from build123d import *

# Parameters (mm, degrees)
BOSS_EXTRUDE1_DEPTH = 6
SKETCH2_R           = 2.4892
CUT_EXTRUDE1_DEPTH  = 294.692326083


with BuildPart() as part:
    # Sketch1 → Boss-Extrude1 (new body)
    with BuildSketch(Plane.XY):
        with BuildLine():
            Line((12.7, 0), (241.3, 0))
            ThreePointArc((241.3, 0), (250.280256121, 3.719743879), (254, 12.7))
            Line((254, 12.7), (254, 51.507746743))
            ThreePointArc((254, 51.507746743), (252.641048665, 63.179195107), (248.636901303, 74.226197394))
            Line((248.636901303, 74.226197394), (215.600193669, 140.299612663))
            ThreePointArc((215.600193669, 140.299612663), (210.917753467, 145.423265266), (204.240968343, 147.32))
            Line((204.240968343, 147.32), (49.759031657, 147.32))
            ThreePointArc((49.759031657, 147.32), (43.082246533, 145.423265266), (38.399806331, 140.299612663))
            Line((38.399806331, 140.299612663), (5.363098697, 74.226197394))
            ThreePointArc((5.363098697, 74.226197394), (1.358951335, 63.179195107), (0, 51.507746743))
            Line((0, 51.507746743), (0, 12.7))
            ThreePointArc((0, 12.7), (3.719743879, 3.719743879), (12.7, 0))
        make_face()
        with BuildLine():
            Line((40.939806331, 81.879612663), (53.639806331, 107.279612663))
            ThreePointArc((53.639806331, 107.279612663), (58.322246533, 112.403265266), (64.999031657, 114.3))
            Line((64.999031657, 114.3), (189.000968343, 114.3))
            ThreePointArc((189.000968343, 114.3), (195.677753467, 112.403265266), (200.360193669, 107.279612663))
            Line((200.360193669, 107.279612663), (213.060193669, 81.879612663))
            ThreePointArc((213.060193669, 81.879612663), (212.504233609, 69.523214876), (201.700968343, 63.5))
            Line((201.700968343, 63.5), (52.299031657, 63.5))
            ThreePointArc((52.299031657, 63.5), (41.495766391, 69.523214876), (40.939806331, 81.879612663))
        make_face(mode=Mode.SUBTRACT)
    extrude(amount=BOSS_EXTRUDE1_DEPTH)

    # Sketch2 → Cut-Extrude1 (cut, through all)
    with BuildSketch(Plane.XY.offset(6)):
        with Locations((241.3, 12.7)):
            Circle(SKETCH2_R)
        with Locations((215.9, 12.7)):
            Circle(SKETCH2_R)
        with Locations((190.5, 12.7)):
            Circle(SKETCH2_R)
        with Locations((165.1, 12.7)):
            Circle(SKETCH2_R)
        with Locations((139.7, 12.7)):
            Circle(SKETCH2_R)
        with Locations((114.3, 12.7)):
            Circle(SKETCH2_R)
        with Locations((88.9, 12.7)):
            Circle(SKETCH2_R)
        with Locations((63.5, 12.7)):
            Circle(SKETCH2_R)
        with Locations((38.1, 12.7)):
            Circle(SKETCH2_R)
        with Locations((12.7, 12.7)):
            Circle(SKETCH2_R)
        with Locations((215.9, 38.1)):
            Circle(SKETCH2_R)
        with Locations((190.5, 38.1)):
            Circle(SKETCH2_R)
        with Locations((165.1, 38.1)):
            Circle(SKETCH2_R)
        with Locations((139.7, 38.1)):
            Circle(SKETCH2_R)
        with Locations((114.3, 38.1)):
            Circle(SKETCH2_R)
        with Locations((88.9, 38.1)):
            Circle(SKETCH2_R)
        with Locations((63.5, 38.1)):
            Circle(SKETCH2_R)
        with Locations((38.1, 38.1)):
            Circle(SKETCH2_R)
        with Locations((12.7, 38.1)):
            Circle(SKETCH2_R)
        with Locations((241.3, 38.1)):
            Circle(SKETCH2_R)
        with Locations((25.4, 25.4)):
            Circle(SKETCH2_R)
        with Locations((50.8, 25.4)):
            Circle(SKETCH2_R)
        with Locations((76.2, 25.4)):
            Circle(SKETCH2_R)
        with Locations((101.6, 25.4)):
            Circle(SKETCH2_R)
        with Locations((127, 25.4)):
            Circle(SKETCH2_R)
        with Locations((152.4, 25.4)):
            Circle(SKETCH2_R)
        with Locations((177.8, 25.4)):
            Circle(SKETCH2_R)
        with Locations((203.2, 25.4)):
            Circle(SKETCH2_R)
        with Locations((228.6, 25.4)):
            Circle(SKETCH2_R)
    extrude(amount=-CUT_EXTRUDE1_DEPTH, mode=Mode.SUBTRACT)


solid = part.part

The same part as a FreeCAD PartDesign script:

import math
import FreeCAD as App
import Part
import Sketcher
from FreeCAD import Vector
Q = App.Units.Quantity

doc = App.newDocument("Part")
params = doc.addObject("Spreadsheet::Sheet", "Params")
for row, (alias, value) in enumerate([
    ("sketch1_radius", "2 in"),
    ("sketch1_radius2", "0.5 in"),
    ("sketch1_width", "9 in"),
    ("pad1_length", "6 mm"),
    ("sketch2_diameter", "0.196 in"),
], start=1):
    params.set(f"A{row}", alias)
    params.set(f"B{row}", "=" + value)
    params.setAlias(f"B{row}", alias)

body = doc.addObject("PartDesign::Body", "Body")

# Sketch on XY plane
sketch1 = body.newObject("Sketcher::SketchObject", "Sketch")
sketch1.AttachmentSupport = (doc.getObject("XY_Plane"), [""])
sketch1.MapMode = "FlatFace"
sketch1.addGeometry([
    Part.LineSegment(Vector(13, 0, 0), Vector(241, 0, 0)),  # 0
    Part.ArcOfCircle(Part.Circle(Vector(241, 13, 0), Vector(0, 0, 1), 13), math.radians(-90), math.radians(0)),  # 1
    Part.LineSegment(Vector(254, 13, 0), Vector(254, 52, 0)),  # 2
    Part.ArcOfCircle(Part.Circle(Vector(203, 52, 0), Vector(0, 0, 1), 51), math.radians(0), math.radians(27)),  # 3
    Part.LineSegment(Vector(249, 74, 0), Vector(216, 140, 0)),  # 4
    Part.ArcOfCircle(Part.Circle(Vector(204, 135, 0), Vector(0, 0, 1), 13), math.radians(27), math.radians(90)),  # 5
    Part.LineSegment(Vector(204, 147, 0), Vector(50, 147, 0)),  # 6
    Part.ArcOfCircle(Part.Circle(Vector(50, 135, 0), Vector(0, 0, 1), 13), math.radians(90), math.radians(153)),  # 7
    Part.LineSegment(Vector(38, 140, 0), Vector(5, 74, 0)),  # 8
    Part.ArcOfCircle(Part.Circle(Vector(51, 52, 0), Vector(0, 0, 1), 51), math.radians(153), math.radians(180)),  # 9
    Part.LineSegment(Vector(0, 52, 0), Vector(0, 13, 0)),  # 10
    Part.ArcOfCircle(Part.Circle(Vector(13, 13, 0), Vector(0, 0, 1), 13), math.radians(180), math.radians(270)),  # 11
    Part.ArcOfCircle(Part.Circle(Vector(52, 76, 0), Vector(0, 0, 1), 13), math.radians(153), math.radians(270)),  # 12
    Part.LineSegment(Vector(41, 82, 0), Vector(54, 107, 0)),  # 13
    Part.ArcOfCircle(Part.Circle(Vector(65, 102, 0), Vector(0, 0, 1), 13), math.radians(90), math.radians(153)),  # 14
    Part.LineSegment(Vector(65, 114, 0), Vector(189, 114, 0)),  # 15
    Part.ArcOfCircle(Part.Circle(Vector(189, 102, 0), Vector(0, 0, 1), 13), math.radians(27), math.radians(90)),  # 16
    Part.LineSegment(Vector(200, 107, 0), Vector(213, 82, 0)),  # 17
    Part.ArcOfCircle(Part.Circle(Vector(202, 76, 0), Vector(0, 0, 1), 13), math.radians(-90), math.radians(27)),  # 18
    Part.LineSegment(Vector(202, 64, 0), Vector(52, 64, 0)),  # 19
], False)
sketch1.addConstraint([
    Sketcher.Constraint("Tangent", 0, 2, 1, 1),
    Sketcher.Constraint("Tangent", 1, 2, 2, 1),
    Sketcher.Constraint("Tangent", 2, 2, 3, 1),
    Sketcher.Constraint("Tangent", 3, 2, 4, 1),
    Sketcher.Constraint("Tangent", 4, 2, 5, 1),
    Sketcher.Constraint("Tangent", 5, 2, 6, 1),
    Sketcher.Constraint("Tangent", 6, 2, 7, 1),
    Sketcher.Constraint("Tangent", 7, 2, 8, 1),
    Sketcher.Constraint("Tangent", 8, 2, 9, 1),
    Sketcher.Constraint("Tangent", 9, 2, 10, 1),
    Sketcher.Constraint("Tangent", 10, 2, 11, 1),
    Sketcher.Constraint("Tangent", 11, 2, 0, 1),
    Sketcher.Constraint("Tangent", 12, 1, 13, 1),
    Sketcher.Constraint("Tangent", 13, 2, 14, 2),
    Sketcher.Constraint("Tangent", 14, 1, 15, 1),
    Sketcher.Constraint("Tangent", 15, 2, 16, 2),
    Sketcher.Constraint("Tangent", 16, 1, 17, 1),
    Sketcher.Constraint("Tangent", 17, 2, 18, 2),
    Sketcher.Constraint("Tangent", 18, 1, 19, 1),
    Sketcher.Constraint("Tangent", 19, 2, 12, 2),
    Sketcher.Constraint("Horizontal", 0),
    Sketcher.Constraint("Vertical", 2),
    Sketcher.Constraint("Horizontal", 6),
    Sketcher.Constraint("Vertical", 10),
    Sketcher.Constraint("Horizontal", 15),
    Sketcher.Constraint("Horizontal", 19),
    Sketcher.Constraint("Equal", 1, 5),
    Sketcher.Constraint("Equal", 5, 7),
    Sketcher.Constraint("Equal", 3, 9),
    Sketcher.Constraint("Equal", 7, 11),
    Sketcher.Constraint("Equal", 11, 12),
    Sketcher.Constraint("Equal", 12, 14),
    Sketcher.Constraint("Equal", 14, 16),
    Sketcher.Constraint("Equal", 16, 18),
    Sketcher.Constraint("PointOnObject", 0, 2, -1),
    Sketcher.Constraint("PointOnObject", 9, 2, -2),
    Sketcher.Constraint("Parallel", 8, 13),
    Sketcher.Constraint("Parallel", 4, 17),
    Sketcher.Constraint("Horizontal", 3, 3, 9, 3),
    Sketcher.Constraint("Horizontal", 4, 2, 7, 2),
    Sketcher.Constraint("Radius", 3, Q("2 in")),
    Sketcher.Constraint("Radius", 1, Q("0.5 in")),
    Sketcher.Constraint("DistanceX", 0, 1, 0, 2, Q("9 in")),
    Sketcher.Constraint("DistanceY", -1, 1, 12, 3, Q("3 in")),
    Sketcher.Constraint("DistanceY", -1, 1, 14, 3, Q("4 in")),
    Sketcher.Constraint("DistanceY", -1, 1, 5, 3, Q("5.3 in")),
    Sketcher.Constraint("DistanceX", 7, 3, 12, 3, Q("0.1 in")),
    Sketcher.Constraint("DistanceX", 12, 3, 14, 3, Q("0.5 in")),
    Sketcher.Constraint("DistanceX", 16, 3, 5, 3, Q("0.6 in")),
    Sketcher.Constraint("DistanceX", 6, 2, 6, 1, 154.481937),
])
sketch1.setExpression("Constraints[40]", "Params.sketch1_radius")
sketch1.setExpression("Constraints[41]", "Params.sketch1_radius2")
sketch1.setExpression("Constraints[42]", "Params.sketch1_width")
pad1 = body.newObject("PartDesign::Pad", "Pad")
pad1.Profile = sketch1
pad1.setExpression("Length", "Params.pad1_length")

# Sketch on XY plane
sketch2 = body.newObject("Sketcher::SketchObject", "Sketch001")
sketch2.AttachmentSupport = (doc.getObject("XY_Plane"), [""])
sketch2.MapMode = "FlatFace"
sketch2.AttachmentOffset = App.Placement(Vector(0, 0, 6), App.Rotation())
sketch2.addGeometry([
    Part.Circle(Vector(241.3, 12.7, 0), Vector(0, 0, 1), 2.5),  # 0
    Part.Circle(Vector(215.9, 12.7, 0), Vector(0, 0, 1), 2.5),  # 1
    Part.Circle(Vector(190.5, 12.7, 0), Vector(0, 0, 1), 2.5),  # 2
    Part.Circle(Vector(165.1, 12.7, 0), Vector(0, 0, 1), 2.5),  # 3
    Part.Circle(Vector(139.7, 12.7, 0), Vector(0, 0, 1), 2.5),  # 4
    Part.Circle(Vector(114.3, 12.7, 0), Vector(0, 0, 1), 2.5),  # 5
    Part.Circle(Vector(88.9, 12.7, 0), Vector(0, 0, 1), 2.5),  # 6
    Part.Circle(Vector(63.5, 12.7, 0), Vector(0, 0, 1), 2.5),  # 7
    Part.Circle(Vector(38.1, 12.7, 0), Vector(0, 0, 1), 2.5),  # 8
    Part.Circle(Vector(12.7, 12.7, 0), Vector(0, 0, 1), 2.5),  # 9
    Part.Circle(Vector(215.9, 38.1, 0), Vector(0, 0, 1), 2.5),  # 10
    Part.Circle(Vector(190.5, 38.1, 0), Vector(0, 0, 1), 2.5),  # 11
    Part.Circle(Vector(165.1, 38.1, 0), Vector(0, 0, 1), 2.5),  # 12
    Part.Circle(Vector(139.7, 38.1, 0), Vector(0, 0, 1), 2.5),  # 13
    Part.Circle(Vector(114.3, 38.1, 0), Vector(0, 0, 1), 2.5),  # 14
    Part.Circle(Vector(88.9, 38.1, 0), Vector(0, 0, 1), 2.5),  # 15
    Part.Circle(Vector(63.5, 38.1, 0), Vector(0, 0, 1), 2.5),  # 16
    Part.Circle(Vector(38.1, 38.1, 0), Vector(0, 0, 1), 2.5),  # 17
    Part.Circle(Vector(12.7, 38.1, 0), Vector(0, 0, 1), 2.5),  # 18
    Part.Circle(Vector(241.3, 38.1, 0), Vector(0, 0, 1), 2.5),  # 19
    Part.Circle(Vector(25.4, 25.4, 0), Vector(0, 0, 1), 2.5),  # 20
    Part.Circle(Vector(50.8, 25.4, 0), Vector(0, 0, 1), 2.5),  # 21
    Part.Circle(Vector(76.2, 25.4, 0), Vector(0, 0, 1), 2.5),  # 22
    Part.Circle(Vector(101.6, 25.4, 0), Vector(0, 0, 1), 2.5),  # 23
    Part.Circle(Vector(127, 25.4, 0), Vector(0, 0, 1), 2.5),  # 24
    Part.Circle(Vector(152.4, 25.4, 0), Vector(0, 0, 1), 2.5),  # 25
    Part.Circle(Vector(177.8, 25.4, 0), Vector(0, 0, 1), 2.5),  # 26
    Part.Circle(Vector(203.2, 25.4, 0), Vector(0, 0, 1), 2.5),  # 27
    Part.Circle(Vector(228.6, 25.4, 0), Vector(0, 0, 1), 2.5),  # 28
], False)
sketch2.addConstraint([
    Sketcher.Constraint("Equal", 0, 1),
    Sketcher.Constraint("Equal", 1, 2),
    Sketcher.Constraint("Equal", 2, 3),
    Sketcher.Constraint("Equal", 3, 4),
    Sketcher.Constraint("Equal", 4, 5),
    Sketcher.Constraint("Equal", 5, 6),
    Sketcher.Constraint("Equal", 6, 7),
    Sketcher.Constraint("Equal", 7, 8),
    Sketcher.Constraint("Equal", 8, 9),
    Sketcher.Constraint("Equal", 9, 10),
    Sketcher.Constraint("Equal", 10, 11),
    Sketcher.Constraint("Equal", 11, 12),
    Sketcher.Constraint("Equal", 12, 13),
    Sketcher.Constraint("Equal", 13, 14),
    Sketcher.Constraint("Equal", 14, 15),
    Sketcher.Constraint("Equal", 15, 16),
    Sketcher.Constraint("Equal", 16, 17),
    Sketcher.Constraint("Equal", 17, 18),
    Sketcher.Constraint("Equal", 18, 19),
    Sketcher.Constraint("Equal", 19, 20),
    Sketcher.Constraint("Equal", 20, 21),
    Sketcher.Constraint("Equal", 21, 22),
    Sketcher.Constraint("Equal", 22, 23),
    Sketcher.Constraint("Equal", 23, 24),
    Sketcher.Constraint("Equal", 24, 25),
    Sketcher.Constraint("Equal", 25, 26),
    Sketcher.Constraint("Equal", 26, 27),
    Sketcher.Constraint("Equal", 27, 28),
    Sketcher.Constraint("Horizontal", 0, 3, 1, 3),
    Sketcher.Constraint("Horizontal", 1, 3, 2, 3),
    Sketcher.Constraint("Horizontal", 2, 3, 3, 3),
    Sketcher.Constraint("Horizontal", 3, 3, 4, 3),
    Sketcher.Constraint("Horizontal", 4, 3, 5, 3),
    Sketcher.Constraint("Horizontal", 5, 3, 6, 3),
    Sketcher.Constraint("Horizontal", 6, 3, 7, 3),
    Sketcher.Constraint("Horizontal", 7, 3, 8, 3),
    Sketcher.Constraint("Horizontal", 8, 3, 9, 3),
    Sketcher.Constraint("Horizontal", 10, 3, 11, 3),
    Sketcher.Constraint("Horizontal", 11, 3, 12, 3),
    Sketcher.Constraint("Horizontal", 12, 3, 13, 3),
    Sketcher.Constraint("Horizontal", 13, 3, 14, 3),
    Sketcher.Constraint("Horizontal", 14, 3, 15, 3),
    Sketcher.Constraint("Horizontal", 15, 3, 16, 3),
    Sketcher.Constraint("Horizontal", 16, 3, 17, 3),
    Sketcher.Constraint("Horizontal", 17, 3, 18, 3),
    Sketcher.Constraint("Horizontal", 18, 3, 19, 3),
    Sketcher.Constraint("Horizontal", 20, 3, 21, 3),
    Sketcher.Constraint("Horizontal", 21, 3, 22, 3),
    Sketcher.Constraint("Horizontal", 22, 3, 23, 3),
    Sketcher.Constraint("Horizontal", 23, 3, 24, 3),
    Sketcher.Constraint("Horizontal", 24, 3, 25, 3),
    Sketcher.Constraint("Horizontal", 25, 3, 26, 3),
    Sketcher.Constraint("Horizontal", 26, 3, 27, 3),
    Sketcher.Constraint("Horizontal", 27, 3, 28, 3),
    Sketcher.Constraint("Vertical", 1, 3, 10, 3),
    Sketcher.Constraint("Vertical", 2, 3, 11, 3),
    Sketcher.Constraint("Vertical", 3, 3, 12, 3),
    Sketcher.Constraint("Vertical", 4, 3, 13, 3),
    Sketcher.Constraint("Vertical", 5, 3, 14, 3),
    Sketcher.Constraint("Vertical", 6, 3, 15, 3),
    Sketcher.Constraint("Vertical", 7, 3, 16, 3),
    Sketcher.Constraint("Vertical", 8, 3, 17, 3),
    Sketcher.Constraint("Vertical", 9, 3, 18, 3),
    Sketcher.Constraint("Vertical", 0, 3, 19, 3),
    Sketcher.Constraint("Diameter", 0, Q("0.196 in")),
    Sketcher.Constraint("DistanceX", -1, 1, 20, 3, Q("1 in")),
    Sketcher.Constraint("DistanceY", -1, 1, 20, 3, Q("1 in")),
    Sketcher.Constraint("DistanceX", -1, 1, 21, 3, Q("2 in")),
    Sketcher.Constraint("DistanceX", -1, 1, 22, 3, Q("3 in")),
    Sketcher.Constraint("DistanceX", -1, 1, 23, 3, Q("4 in")),
    Sketcher.Constraint("DistanceX", -1, 1, 24, 3, Q("5 in")),
    Sketcher.Constraint("DistanceX", -1, 1, 25, 3, Q("6 in")),
    Sketcher.Constraint("DistanceX", -1, 1, 26, 3, Q("7 in")),
    Sketcher.Constraint("DistanceX", -1, 1, 27, 3, Q("8 in")),
    Sketcher.Constraint("DistanceX", -1, 1, 28, 3, Q("9 in")),
    Sketcher.Constraint("DistanceX", 1, 3, 0, 3, Q("1 in")),
    Sketcher.Constraint("DistanceX", 2, 3, 1, 3, Q("1 in")),
    Sketcher.Constraint("DistanceX", 3, 3, 2, 3, Q("1 in")),
    Sketcher.Constraint("DistanceX", 4, 3, 3, 3, Q("1 in")),
    Sketcher.Constraint("DistanceX", 5, 3, 4, 3, Q("1 in")),
    Sketcher.Constraint("DistanceX", 6, 3, 5, 3, Q("1 in")),
    Sketcher.Constraint("DistanceX", 7, 3, 6, 3, Q("1 in")),
    Sketcher.Constraint("DistanceX", 8, 3, 7, 3, Q("1 in")),
    Sketcher.Constraint("DistanceX", 9, 3, 8, 3, Q("1 in")),
    Sketcher.Constraint("DistanceY", 1, 3, 10, 3, Q("1 in")),
    Sketcher.Constraint("DistanceX", -1, 1, 0, 3, Q("9.5 in")),
    Sketcher.Constraint("DistanceY", -1, 1, 0, 3, Q("0.5 in")),
])
sketch2.setExpression("Constraints[64]", "Params.sketch2_diameter")
pocket1 = body.newObject("PartDesign::Pocket", "Pocket")
pocket1.Profile = sketch2
pocket1.Type = "ThroughAll"

doc.recompute()
